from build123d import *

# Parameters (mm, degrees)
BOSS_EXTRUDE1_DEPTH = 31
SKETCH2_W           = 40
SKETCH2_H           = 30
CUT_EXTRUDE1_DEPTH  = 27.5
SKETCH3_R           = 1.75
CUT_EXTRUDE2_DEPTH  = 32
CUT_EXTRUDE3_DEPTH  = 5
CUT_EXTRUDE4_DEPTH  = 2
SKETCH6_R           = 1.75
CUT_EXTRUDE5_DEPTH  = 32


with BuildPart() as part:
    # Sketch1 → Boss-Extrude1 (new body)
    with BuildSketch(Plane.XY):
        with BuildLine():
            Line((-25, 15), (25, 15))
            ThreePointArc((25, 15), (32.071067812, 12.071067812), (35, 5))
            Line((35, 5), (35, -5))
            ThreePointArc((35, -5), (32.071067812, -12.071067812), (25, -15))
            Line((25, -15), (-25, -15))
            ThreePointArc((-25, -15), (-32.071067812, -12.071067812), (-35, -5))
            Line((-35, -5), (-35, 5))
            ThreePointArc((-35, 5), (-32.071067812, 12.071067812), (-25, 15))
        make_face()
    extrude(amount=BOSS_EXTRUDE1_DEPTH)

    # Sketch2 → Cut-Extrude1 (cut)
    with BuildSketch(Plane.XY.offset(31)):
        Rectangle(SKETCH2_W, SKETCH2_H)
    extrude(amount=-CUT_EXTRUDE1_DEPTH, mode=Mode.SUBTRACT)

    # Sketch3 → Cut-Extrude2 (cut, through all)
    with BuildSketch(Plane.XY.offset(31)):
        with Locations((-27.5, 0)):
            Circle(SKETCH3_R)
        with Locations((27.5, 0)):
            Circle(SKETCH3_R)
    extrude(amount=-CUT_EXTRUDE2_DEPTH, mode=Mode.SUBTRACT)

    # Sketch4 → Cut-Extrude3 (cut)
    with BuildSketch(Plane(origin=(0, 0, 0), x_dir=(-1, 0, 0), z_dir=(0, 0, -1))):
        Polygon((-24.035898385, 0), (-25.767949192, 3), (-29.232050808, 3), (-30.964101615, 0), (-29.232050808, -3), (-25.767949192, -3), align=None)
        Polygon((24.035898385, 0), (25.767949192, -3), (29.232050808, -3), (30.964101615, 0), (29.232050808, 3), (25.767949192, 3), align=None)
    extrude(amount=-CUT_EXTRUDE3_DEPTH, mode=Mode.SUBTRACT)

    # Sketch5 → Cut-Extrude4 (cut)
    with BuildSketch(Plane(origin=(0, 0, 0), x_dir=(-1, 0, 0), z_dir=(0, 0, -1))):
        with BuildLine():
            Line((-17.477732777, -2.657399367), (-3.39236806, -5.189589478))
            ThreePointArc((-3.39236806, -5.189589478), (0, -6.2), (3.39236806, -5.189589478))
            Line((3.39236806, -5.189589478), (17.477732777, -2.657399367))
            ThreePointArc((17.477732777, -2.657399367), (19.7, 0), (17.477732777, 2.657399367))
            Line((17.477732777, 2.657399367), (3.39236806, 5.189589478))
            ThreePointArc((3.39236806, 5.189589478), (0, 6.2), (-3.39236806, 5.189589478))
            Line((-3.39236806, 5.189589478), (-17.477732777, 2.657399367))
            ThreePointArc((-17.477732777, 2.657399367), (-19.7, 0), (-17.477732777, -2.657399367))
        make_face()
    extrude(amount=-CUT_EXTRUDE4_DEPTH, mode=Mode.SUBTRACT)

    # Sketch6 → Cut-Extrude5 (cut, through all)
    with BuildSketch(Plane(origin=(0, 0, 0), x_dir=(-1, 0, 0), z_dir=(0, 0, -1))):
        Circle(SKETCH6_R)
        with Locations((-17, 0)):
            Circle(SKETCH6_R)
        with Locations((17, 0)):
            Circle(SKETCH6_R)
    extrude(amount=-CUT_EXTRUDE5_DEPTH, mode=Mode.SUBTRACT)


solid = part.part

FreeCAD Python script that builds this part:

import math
import FreeCAD as App
import Part
import Sketcher

V = App.Vector
Q = App.Units.Quantity


def add_polygon(sketch, points):
    """Adds a closed chain of lines whose ends are joined by coincident constraints."""
    first, n = sketch.GeometryCount, len(points)
    for a, b in zip(points, points[1:] + points[:1]):
        sketch.addGeometry(Part.LineSegment(App.Vector(*a, 0), App.Vector(*b, 0)), False)
    for i in range(n):
        sketch.addConstraint(Sketcher.Constraint("Coincident", first + i, 2, first + (i + 1) % n, 1))

doc = App.newDocument("Part")
body = doc.addObject("PartDesign::Body", "Body")

sketch1 = body.newObject("Sketcher::SketchObject", "Sketch")
sketch1.AttachmentSupport = (doc.getObject("XY_Plane"), [""])
sketch1.MapMode = "FlatFace"
sketch1.addGeometry([
    Part.LineSegment(V(25, 15, 0), V(-25, 15, 0)),
    Part.ArcOfCircle(Part.Circle(V(-25, 5, 0), V(0, 0, 1), 10), math.radians(90), math.radians(180)),
    Part.LineSegment(V(-35, 5, 0), V(-35, -5, 0)),
    Part.ArcOfCircle(Part.Circle(V(-25, -5, 0), V(0, 0, 1), 10), math.radians(180), math.radians(270)),
    Part.LineSegment(V(-25, -15, 0), V(25, -15, 0)),
    Part.ArcOfCircle(Part.Circle(V(25, -5, 0), V(0, 0, 1), 10), math.radians(-90), math.radians(0)),
    Part.LineSegment(V(35, -5, 0), V(35, 5, 0)),
    Part.ArcOfCircle(Part.Circle(V(25, 5, 0), V(0, 0, 1), 10), math.radians(0), math.radians(90)),
], False)
sketch1.addConstraint([
    Sketcher.Constraint("Tangent", 0, 2, 1, 1),
    Sketcher.Constraint("Tangent", 1, 2, 2, 1),
    Sketcher.Constraint("Tangent", 2, 2, 3, 1),
    Sketcher.Constraint("Tangent", 3, 2, 4, 1),
    Sketcher.Constraint("Tangent", 4, 2, 5, 1),
    Sketcher.Constraint("Tangent", 5, 2, 6, 1),
    Sketcher.Constraint("Tangent", 6, 2, 7, 1),
    Sketcher.Constraint("Tangent", 7, 2, 0, 1),
    Sketcher.Constraint("Horizontal", 0),
    Sketcher.Constraint("Vertical", 2),
    Sketcher.Constraint("Horizontal", 4),
    Sketcher.Constraint("Vertical", 6),
    Sketcher.Constraint("Equal", 1, 3),
    Sketcher.Constraint("Equal", 3, 5),
    Sketcher.Constraint("Equal", 5, 7),
    Sketcher.Constraint("Symmetric", 1, 3, 5, 3, -1, 1),
    Sketcher.Constraint("Radius", 1, Q("10 mm")),
    Sketcher.Constraint("DistanceX", 0, 2, 0, 1, Q("50 mm")),
    Sketcher.Constraint("DistanceY", 2, 2, 2, 1, Q("10 mm")),
])
pad1 = body.newObject("PartDesign::Pad", "Pad")
pad1.Profile = sketch1
pad1.Length = 31

sketch2 = body.newObject("Sketcher::SketchObject", "Sketch001")
sketch2.AttachmentSupport = (doc.getObject("XY_Plane"), [""])
sketch2.MapMode = "FlatFace"
sketch2.AttachmentOffset = App.Placement(V(0, 0, 31), App.Rotation())
add_polygon(sketch2, [(-20, 15), (-20, -15), (20, -15), (20, 15)])
sketch2.addConstraint([
    Sketcher.Constraint("Vertical", 0),
    Sketcher.Constraint("Horizontal", 1),
    Sketcher.Constraint("Vertical", 2),
    Sketcher.Constraint("Horizontal", 3),
    Sketcher.Constraint("Symmetric", 0, 2, 2, 2, -1, 1),
    Sketcher.Constraint("DistanceX", 1, 1, 1, 2, Q("40 mm")),
    Sketcher.Constraint("DistanceY", 0, 2, 0, 1, Q("30 mm")),
])
pocket1 = body.newObject("PartDesign::Pocket", "Pocket")
pocket1.Profile = sketch2
pocket1.Length = 27.5

sketch3 = body.newObject("Sketcher::SketchObject", "Sketch002")
sketch3.AttachmentSupport = (doc.getObject("XY_Plane"), [""])
sketch3.MapMode = "FlatFace"
sketch3.AttachmentOffset = App.Placement(V(0, 0, 31), App.Rotation())
sketch3.addGeometry([
    Part.Circle(V(-27.5, 0, 0), V(0, 0, 1), 1.75),
    Part.Circle(V(27.5, 0, 0), V(0, 0, 1), 1.75),
], False)
sketch3.addConstraint([
    Sketcher.Constraint("Equal", 0, 1),
    Sketcher.Constraint("Symmetric", 0, 3, 1, 3, -1, 1),
    Sketcher.Constraint("PointOnObject", 0, 3, -1),
    Sketcher.Constraint("Diameter", 0, Q("3.5 mm")),
    Sketcher.Constraint("DistanceX", 0, 3, 1, 3, Q("55 mm")),
])
pocket2 = body.newObject("PartDesign::Pocket", "Pocket001")
pocket2.Profile = sketch3
pocket2.Type = "ThroughAll"

sketch4 = body.newObject("Sketcher::SketchObject", "Sketch003")
sketch4.AttachmentSupport = (doc.getObject("XY_Plane"), [""])
sketch4.MapMode = "FlatFace"
add_polygon(sketch4, [(24.035898, 0), (25.767949, 3), (29.232051, 3), (30.964102, 0), (29.232051, -3), (25.767949, -3)])
add_polygon(sketch4, [(-24.035898, 0), (-25.767949, -3), (-29.232051, -3), (-30.964102, 0), (-29.232051, 3), (-25.767949, 3)])
sketch4.addConstraint([
    Sketcher.Constraint("Horizontal", 1),
    Sketcher.Constraint("Horizontal", 4),
    Sketcher.Constraint("Horizontal", 7),
    Sketcher.Constraint("Horizontal", 10),
    Sketcher.Constraint("Symmetric", 0, 2, 6, 2, -1, 1),
    Sketcher.Constraint("Symmetric", 2, 2, 8, 2, -1, 1),
    Sketcher.Constraint("Symmetric", 3, 2, 9, 2, -1, 1),
    Sketcher.Constraint("Symmetric", 5, 2, 11, 2, -1, 1),
    Sketcher.Constraint("Symmetric", 4, 2, 6, 2, -2),
    Sketcher.Constraint("PointOnObject", 2, 2, -1),
    Sketcher.Constraint("PointOnObject", 5, 2, -1),
    Sketcher.Constraint("Parallel", 0, 3),
    Sketcher.Constraint("Parallel", 2, 5),
    Sketcher.Constraint("Parallel", 5, 8),
    Sketcher.Constraint("Parallel", 8, 11),
    Sketcher.Constraint("Angle", 0, Q("60 deg")),
    Sketcher.Constraint("DistanceY", -1, 1, 0, 2, Q("3 mm")),
    Sketcher.Constraint("DistanceX", 6, 2, 3, 2, Q("55 mm")),
    Sketcher.Constraint("DistanceX", 1, 1, 1, 2, Q("3.464102 mm")),
])
pocket3 = body.newObject("PartDesign::Pocket", "Pocket002")
pocket3.Profile = sketch4
pocket3.Length = 5
pocket3.Reversed = True

sketch5 = body.newObject("Sketcher::SketchObject", "Sketch004")
sketch5.AttachmentSupport = (doc.getObject("XY_Plane"), [""])
sketch5.MapMode = "FlatFace"
sketch5.addGeometry([
    Part.LineSegment(V(17.477733, -2.657399, 0), V(3.392368, -5.189589, 0)),
    Part.ArcOfCircle(Part.Circle(V(0, 0, 0), V(0, 0, 1), 6.2), math.radians(-123.17213), math.radians(-56.82787)),
    Part.LineSegment(V(-3.392368, -5.189589, 0), V(-17.477733, -2.657399, 0)),
    Part.ArcOfCircle(Part.Circle(V(-17, 0, 0), V(0, 0, 1), 2.7), math.radians(100.191461), math.radians(259.808539)),
    Part.LineSegment(V(-17.477733, 2.657399, 0), V(-3.392368, 5.189589, 0)),
    Part.ArcOfCircle(Part.Circle(V(0, 0, 0), V(0, 0, 1), 6.2), math.radians(56.82787), math.radians(123.17213)),
    Part.LineSegment(V(3.392368, 5.189589, 0), V(17.477733, 2.657399, 0)),
    Part.ArcOfCircle(Part.Circle(V(17, 0, 0), V(0, 0, 1), 2.7), math.radians(-79.808539), math.radians(79.808539)),
], False)
sketch5.addConstraint([
    Sketcher.Constraint("Coincident", 0, 2, 1, 2),
    Sketcher.Constraint("Coincident", 1, 1, 2, 1),
    Sketcher.Constraint("Coincident", 2, 2, 3, 2),
    Sketcher.Constraint("Coincident", 3, 1, 4, 1),
    Sketcher.Constraint("Coincident", 4, 2, 5, 2),
    Sketcher.Constraint("Coincident", 5, 1, 6, 1),
    Sketcher.Constraint("Coincident", 6, 2, 7, 2),
    Sketcher.Constraint("Coincident", 7, 1, 0, 1),
    Sketcher.Constraint("Coincident", 1, 3, -1, 1),
    Sketcher.Constraint("Coincident", 5, 3, -1, 1),
    Sketcher.Constraint("PointOnObject", 3, 3, -1),
    Sketcher.Constraint("PointOnObject", 7, 3, -1),
    Sketcher.Constraint("Radius", 1, Q("6.2 mm")),
    Sketcher.Constraint("Radius", 3, Q("2.7 mm")),
    Sketcher.Constraint("Radius", 5, Q("6.2 mm")),
    Sketcher.Constraint("Radius", 7, Q("2.7 mm")),
    Sketcher.Constraint("DistanceX", 3, 3, -1, 1, Q("17 mm")),
    Sketcher.Constraint("DistanceX", -1, 1, 7, 3, Q("17 mm")),
    Sketcher.Constraint("DistanceY", 2, 2, -1, 1, Q("2.657399 mm")),
    Sketcher.Constraint("DistanceY", -1, 1, 3, 1, Q("2.657399 mm")),
    Sketcher.Constraint("DistanceY", -1, 1, 6, 2, Q("2.657399 mm")),
    Sketcher.Constraint("DistanceY", 7, 1, -1, 1, Q("2.657399 mm")),
    Sketcher.Constraint("DistanceX", 2, 2, 0, 2, Q("20.870101 mm")),
    Sketcher.Constraint("DistanceX", 1, 1, -1, 1, Q("3.392368 mm")),
    Sketcher.Constraint("DistanceX", 4, 2, -1, 1, Q("3.392368 mm")),
    Sketcher.Constraint("DistanceX", -1, 1, 5, 1, Q("3.392368 mm")),
])
pocket4 = body.newObject("PartDesign::Pocket", "Pocket003")
pocket4.Profile = sketch5
pocket4.Length = 2
pocket4.Reversed = True

sketch6 = body.newObject("Sketcher::SketchObject", "Sketch005")
sketch6.AttachmentSupport = (doc.getObject("XY_Plane"), [""])
sketch6.MapMode = "FlatFace"
sketch6.addGeometry([
    Part.Circle(V(0, 0, 0), V(0, 0, 1), 1.75),
    Part.Circle(V(17, 0, 0), V(0, 0, 1), 1.75),
    Part.Circle(V(-17, 0, 0), V(0, 0, 1), 1.75),
], False)
sketch6.addConstraint([
    Sketcher.Constraint("Coincident", 0, 3, -1, 1),
    Sketcher.Constraint("Equal", 0, 1),
    Sketcher.Constraint("Equal", 1, 2),
    Sketcher.Constraint("Symmetric", 1, 3, 2, 3, -1, 1),
    Sketcher.Constraint("PointOnObject", 1, 3, -1),
    Sketcher.Constraint("Diameter", 0, Q("3.5 mm")),
    Sketcher.Constraint("DistanceX", -1, 1, 1, 3, Q("17 mm")),
])
pocket5 = body.newObject("PartDesign::Pocket", "Pocket004")
pocket5.Profile = sketch6
pocket5.Type = "ThroughAll"
pocket5.Reversed = True

doc.recompute()
